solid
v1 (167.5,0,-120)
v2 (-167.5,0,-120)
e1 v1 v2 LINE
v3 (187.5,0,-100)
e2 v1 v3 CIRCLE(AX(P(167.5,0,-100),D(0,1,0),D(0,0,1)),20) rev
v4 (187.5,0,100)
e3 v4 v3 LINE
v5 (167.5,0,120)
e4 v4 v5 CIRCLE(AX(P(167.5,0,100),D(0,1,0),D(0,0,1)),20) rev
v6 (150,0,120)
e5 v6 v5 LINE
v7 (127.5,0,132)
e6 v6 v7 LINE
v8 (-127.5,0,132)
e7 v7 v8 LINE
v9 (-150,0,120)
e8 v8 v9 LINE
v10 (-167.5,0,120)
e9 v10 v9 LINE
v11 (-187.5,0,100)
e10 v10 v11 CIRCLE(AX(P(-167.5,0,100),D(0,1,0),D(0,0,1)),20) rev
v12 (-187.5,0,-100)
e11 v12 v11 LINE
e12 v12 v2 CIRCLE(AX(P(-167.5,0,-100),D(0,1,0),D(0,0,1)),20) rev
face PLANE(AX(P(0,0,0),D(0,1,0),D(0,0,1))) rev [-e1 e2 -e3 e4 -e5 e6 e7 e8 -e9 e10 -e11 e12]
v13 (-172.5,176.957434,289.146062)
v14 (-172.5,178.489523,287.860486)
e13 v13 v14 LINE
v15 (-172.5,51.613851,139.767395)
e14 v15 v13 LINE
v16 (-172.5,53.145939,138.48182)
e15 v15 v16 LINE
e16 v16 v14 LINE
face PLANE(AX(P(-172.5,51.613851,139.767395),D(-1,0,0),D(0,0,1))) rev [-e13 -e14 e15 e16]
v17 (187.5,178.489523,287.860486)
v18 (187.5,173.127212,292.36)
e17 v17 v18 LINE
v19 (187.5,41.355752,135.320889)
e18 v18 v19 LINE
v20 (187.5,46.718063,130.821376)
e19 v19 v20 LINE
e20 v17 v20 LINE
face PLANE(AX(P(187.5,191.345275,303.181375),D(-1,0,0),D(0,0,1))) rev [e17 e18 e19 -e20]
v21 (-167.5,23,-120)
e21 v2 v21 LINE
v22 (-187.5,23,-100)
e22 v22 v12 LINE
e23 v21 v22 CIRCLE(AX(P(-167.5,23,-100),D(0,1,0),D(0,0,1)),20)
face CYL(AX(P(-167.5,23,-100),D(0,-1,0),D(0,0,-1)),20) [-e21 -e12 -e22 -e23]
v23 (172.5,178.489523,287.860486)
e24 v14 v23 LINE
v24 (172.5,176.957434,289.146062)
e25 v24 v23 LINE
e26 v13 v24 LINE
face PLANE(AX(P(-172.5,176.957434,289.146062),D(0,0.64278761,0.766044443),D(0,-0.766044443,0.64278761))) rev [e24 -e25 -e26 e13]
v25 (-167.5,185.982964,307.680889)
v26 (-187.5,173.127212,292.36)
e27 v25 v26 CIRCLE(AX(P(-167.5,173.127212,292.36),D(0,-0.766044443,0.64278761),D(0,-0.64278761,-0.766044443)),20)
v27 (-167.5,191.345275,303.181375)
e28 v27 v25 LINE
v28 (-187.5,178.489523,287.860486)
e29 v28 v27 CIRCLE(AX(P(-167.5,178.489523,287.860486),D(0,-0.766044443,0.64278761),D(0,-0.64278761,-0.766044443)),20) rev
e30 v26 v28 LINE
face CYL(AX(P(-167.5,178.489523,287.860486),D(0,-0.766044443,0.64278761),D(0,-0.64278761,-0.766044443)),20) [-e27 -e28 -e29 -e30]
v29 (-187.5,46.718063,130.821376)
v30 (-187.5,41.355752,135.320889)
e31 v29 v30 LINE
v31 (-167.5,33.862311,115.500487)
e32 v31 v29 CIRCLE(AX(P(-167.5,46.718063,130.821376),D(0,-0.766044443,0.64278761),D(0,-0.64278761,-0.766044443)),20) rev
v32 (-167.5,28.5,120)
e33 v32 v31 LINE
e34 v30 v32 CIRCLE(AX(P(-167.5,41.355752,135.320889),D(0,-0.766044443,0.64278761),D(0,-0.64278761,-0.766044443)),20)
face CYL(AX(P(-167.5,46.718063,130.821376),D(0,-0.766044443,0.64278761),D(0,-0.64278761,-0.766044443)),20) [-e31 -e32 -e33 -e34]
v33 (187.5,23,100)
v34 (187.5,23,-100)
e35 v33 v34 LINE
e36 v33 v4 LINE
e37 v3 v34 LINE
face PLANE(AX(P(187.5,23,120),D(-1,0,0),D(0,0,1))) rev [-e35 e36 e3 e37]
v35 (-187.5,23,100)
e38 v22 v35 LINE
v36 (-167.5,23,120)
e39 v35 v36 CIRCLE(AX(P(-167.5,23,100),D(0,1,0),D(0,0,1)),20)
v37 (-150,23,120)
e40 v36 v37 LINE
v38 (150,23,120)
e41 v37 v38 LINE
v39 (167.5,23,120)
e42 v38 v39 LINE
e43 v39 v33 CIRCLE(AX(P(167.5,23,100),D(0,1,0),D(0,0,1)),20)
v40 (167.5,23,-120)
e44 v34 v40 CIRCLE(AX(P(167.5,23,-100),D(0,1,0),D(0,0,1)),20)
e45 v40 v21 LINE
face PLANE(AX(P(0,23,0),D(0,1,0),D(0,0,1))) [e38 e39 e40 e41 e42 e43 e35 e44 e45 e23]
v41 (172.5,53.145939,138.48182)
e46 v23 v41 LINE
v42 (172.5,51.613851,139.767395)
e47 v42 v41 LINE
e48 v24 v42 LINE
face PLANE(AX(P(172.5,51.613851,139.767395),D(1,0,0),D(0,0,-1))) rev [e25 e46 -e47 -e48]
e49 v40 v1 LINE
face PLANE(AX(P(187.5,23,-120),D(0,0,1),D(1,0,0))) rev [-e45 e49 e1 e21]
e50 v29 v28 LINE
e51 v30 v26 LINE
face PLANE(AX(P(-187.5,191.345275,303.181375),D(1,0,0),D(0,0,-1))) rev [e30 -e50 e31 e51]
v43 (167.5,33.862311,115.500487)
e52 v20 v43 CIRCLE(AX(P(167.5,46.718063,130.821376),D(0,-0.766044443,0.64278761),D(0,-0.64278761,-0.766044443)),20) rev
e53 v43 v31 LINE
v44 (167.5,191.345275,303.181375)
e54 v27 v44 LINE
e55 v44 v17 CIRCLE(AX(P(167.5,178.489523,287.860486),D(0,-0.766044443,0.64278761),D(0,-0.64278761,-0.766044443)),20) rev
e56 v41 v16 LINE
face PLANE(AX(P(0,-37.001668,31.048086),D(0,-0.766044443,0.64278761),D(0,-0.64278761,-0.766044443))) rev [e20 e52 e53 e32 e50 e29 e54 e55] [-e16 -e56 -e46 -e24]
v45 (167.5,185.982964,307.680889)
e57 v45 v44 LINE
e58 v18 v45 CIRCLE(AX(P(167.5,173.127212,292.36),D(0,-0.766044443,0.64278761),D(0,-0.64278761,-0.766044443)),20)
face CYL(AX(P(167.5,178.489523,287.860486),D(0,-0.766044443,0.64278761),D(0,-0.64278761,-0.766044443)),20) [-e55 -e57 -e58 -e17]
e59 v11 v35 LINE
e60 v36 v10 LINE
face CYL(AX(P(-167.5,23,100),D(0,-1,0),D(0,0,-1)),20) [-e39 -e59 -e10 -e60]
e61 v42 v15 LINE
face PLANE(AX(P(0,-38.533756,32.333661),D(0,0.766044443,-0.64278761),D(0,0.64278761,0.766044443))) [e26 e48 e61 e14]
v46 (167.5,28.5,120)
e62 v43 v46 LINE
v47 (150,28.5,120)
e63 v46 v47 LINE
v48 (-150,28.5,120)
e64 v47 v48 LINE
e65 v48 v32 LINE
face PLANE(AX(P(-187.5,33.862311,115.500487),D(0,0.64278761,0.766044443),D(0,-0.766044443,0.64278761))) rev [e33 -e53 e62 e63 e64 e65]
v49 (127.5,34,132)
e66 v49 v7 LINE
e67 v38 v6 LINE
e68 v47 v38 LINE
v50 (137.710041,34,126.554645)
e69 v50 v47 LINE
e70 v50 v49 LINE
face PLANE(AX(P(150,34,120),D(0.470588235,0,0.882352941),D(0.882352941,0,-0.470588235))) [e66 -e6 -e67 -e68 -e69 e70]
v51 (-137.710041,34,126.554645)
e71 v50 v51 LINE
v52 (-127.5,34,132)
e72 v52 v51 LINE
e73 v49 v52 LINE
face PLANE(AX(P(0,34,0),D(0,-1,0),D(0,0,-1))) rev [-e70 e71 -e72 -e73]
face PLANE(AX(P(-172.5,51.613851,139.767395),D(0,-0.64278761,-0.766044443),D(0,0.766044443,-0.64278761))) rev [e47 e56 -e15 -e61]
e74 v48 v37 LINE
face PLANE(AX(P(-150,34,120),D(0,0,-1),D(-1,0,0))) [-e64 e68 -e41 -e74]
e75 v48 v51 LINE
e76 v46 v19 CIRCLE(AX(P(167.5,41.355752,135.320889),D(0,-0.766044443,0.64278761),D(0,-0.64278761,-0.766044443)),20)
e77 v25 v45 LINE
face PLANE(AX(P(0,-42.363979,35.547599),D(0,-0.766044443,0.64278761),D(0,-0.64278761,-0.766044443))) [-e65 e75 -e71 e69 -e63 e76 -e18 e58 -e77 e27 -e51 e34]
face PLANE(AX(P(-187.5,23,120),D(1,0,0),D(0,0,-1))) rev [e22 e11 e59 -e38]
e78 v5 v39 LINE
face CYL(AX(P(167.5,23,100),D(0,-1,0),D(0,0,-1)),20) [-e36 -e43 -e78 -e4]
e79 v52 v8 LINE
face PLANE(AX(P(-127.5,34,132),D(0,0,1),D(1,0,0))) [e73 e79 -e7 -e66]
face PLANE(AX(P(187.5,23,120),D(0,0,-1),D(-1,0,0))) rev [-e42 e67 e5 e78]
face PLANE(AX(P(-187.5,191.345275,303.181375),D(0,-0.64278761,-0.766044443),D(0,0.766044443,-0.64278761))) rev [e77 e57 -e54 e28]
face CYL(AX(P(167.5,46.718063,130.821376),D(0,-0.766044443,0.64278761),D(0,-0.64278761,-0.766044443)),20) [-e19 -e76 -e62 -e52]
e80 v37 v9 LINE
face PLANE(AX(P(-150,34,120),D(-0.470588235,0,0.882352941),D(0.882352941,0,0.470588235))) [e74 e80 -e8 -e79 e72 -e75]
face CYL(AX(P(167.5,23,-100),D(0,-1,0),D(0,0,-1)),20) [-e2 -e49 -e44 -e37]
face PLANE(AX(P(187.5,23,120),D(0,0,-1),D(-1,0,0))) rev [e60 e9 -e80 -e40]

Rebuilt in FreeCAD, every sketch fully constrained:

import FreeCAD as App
import Part
import Sketcher
Q = App.Units.Quantity


def edges_at(feature, points):
    """Names of the edges that pass closest to the given points."""
    edges = feature.Shape.Edges
    near = lambda p: min(range(len(edges)), key=lambda i: edges[i].distToShape(Part.Vertex(*p))[0])
    return sorted({f"Edge{near(p) + 1}" for p in points})

doc = App.newDocument("Part")
params = doc.addObject("Spreadsheet::Sheet", "Params")
for row, (alias, value) in enumerate([
    ("sketch1_width", "375 mm"),
    ("sketch1_height", "240 mm"),
    ("pad1_length", "23 mm"),
    ("sketch2_width", "300 mm"),
    ("sketch2_width2", "255 mm"),
    ("pad2_length", "34 mm"),
    ("sketch3_width", "5.5 mm"),
    ("sketch4_width", "375 mm"),
    ("sketch4_height", "245 mm"),
    ("pad3_length", "7 mm"),
    ("sketch5_width", "345 mm"),
    ("sketch5_height", "195 mm"),
    ("pocket2_length", "2 mm"),
    ("fillet_radius", "20 mm"),
], start=1):
    params.set(f"A{row}", alias)
    params.set(f"B{row}", "=" + value)
    params.setAlias(f"B{row}", alias)

body = doc.addObject("PartDesign::Body", "Body")

# Sketch on XZ plane
sketch1 = body.newObject("Sketcher::SketchObject", "Sketch")
sketch1.AttachmentSupport = (doc.getObject("XZ_Plane"), [""])
sketch1.MapMode = "FlatFace"
sketch1.addGeometry([
    Part.LineSegment(App.Vector(-188, -120, 0), App.Vector(-188, 120, 0)),
    Part.LineSegment(App.Vector(-188, 120, 0), App.Vector(188, 120, 0)),
    Part.LineSegment(App.Vector(188, 120, 0), App.Vector(188, -120, 0)),
    Part.LineSegment(App.Vector(188, -120, 0), App.Vector(-188, -120, 0)),
], False)
sketch1.addConstraint([
    Sketcher.Constraint("Coincident", 0, 2, 1, 1),
    Sketcher.Constraint("Coincident", 1, 2, 2, 1),
    Sketcher.Constraint("Coincident", 2, 2, 3, 1),
    Sketcher.Constraint("Coincident", 3, 2, 0, 1),
    Sketcher.Constraint("Vertical", 0),
    Sketcher.Constraint("Horizontal", 1),
    Sketcher.Constraint("Vertical", 2),
    Sketcher.Constraint("Horizontal", 3),
    Sketcher.Constraint("Symmetric", 0, 2, 2, 2, -1, 1),
    Sketcher.Constraint("DistanceX", 1, 1, 1, 2, 375.0),
    Sketcher.Constraint("DistanceY", 0, 1, 0, 2, 240.0),
])
sketch1.setExpression("Constraints[9]", "Params.sketch1_width")
sketch1.setExpression("Constraints[10]", "Params.sketch1_height")
pad1 = body.newObject("PartDesign::Pad", "Pad")
pad1.Profile = sketch1
pad1.setExpression("Length", "Params.pad1_length")
pad1.Reversed = True

# Sketch on XZ plane
sketch2 = body.newObject("Sketcher::SketchObject", "Sketch001")
sketch2.AttachmentSupport = (doc.getObject("XZ_Plane"), [""])
sketch2.MapMode = "FlatFace"
sketch2.addGeometry([
    Part.LineSegment(App.Vector(-128, 132, 0), App.Vector(-150, 120, 0)),
    Part.LineSegment(App.Vector(-150, 120, 0), App.Vector(150, 120, 0)),
    Part.LineSegment(App.Vector(150, 120, 0), App.Vector(128, 132, 0)),
    Part.LineSegment(App.Vector(128, 132, 0), App.Vector(-128, 132, 0)),
], False)
sketch2.addConstraint([
    Sketcher.Constraint("Coincident", 0, 2, 1, 1),
    Sketcher.Constraint("Coincident", 1, 2, 2, 1),
    Sketcher.Constraint("Coincident", 2, 2, 3, 1),
    Sketcher.Constraint("Coincident", 3, 2, 0, 1),
    Sketcher.Constraint("Horizontal", 1),
    Sketcher.Constraint("Horizontal", 3),
    Sketcher.Constraint("Equal", 0, 2),
    Sketcher.Constraint("DistanceX", 1, 1, 1, 2, 300.0),
    Sketcher.Constraint("DistanceX", 3, 2, 3, 1, 255.0),
    Sketcher.Constraint("DistanceX", 0, 2, -1, 1, 150.0),
    Sketcher.Constraint("DistanceY", -1, 1, 0, 2, 120.0),
    Sketcher.Constraint("DistanceY", -1, 1, 2, 2, 132.0),
])
sketch2.setExpression("Constraints[7]", "Params.sketch2_width")
sketch2.setExpression("Constraints[8]", "Params.sketch2_width2")
pad2 = body.newObject("PartDesign::Pad", "Pad001")
pad2.Profile = sketch2
pad2.setExpression("Length", "Params.pad2_length")
pad2.Reversed = True

# Sketch on YZ plane
sketch3 = body.newObject("Sketcher::SketchObject", "Sketch002")
sketch3.AttachmentSupport = (doc.getObject("YZ_Plane"), [""])
sketch3.MapMode = "FlatFace"
sketch3.AttachmentOffset = App.Placement(App.Vector(0, 0, -187.5), App.Rotation())
sketch3.addGeometry([
    Part.LineSegment(App.Vector(28, 120, 0), App.Vector(34, 127, 0)),
    Part.LineSegment(App.Vector(34, 127, 0), App.Vector(34, 120, 0)),
    Part.LineSegment(App.Vector(34, 120, 0), App.Vector(28, 120, 0)),
], False)
sketch3.addConstraint([
    Sketcher.Constraint("Coincident", 0, 2, 1, 1),
    Sketcher.Constraint("Coincident", 1, 2, 2, 1),
    Sketcher.Constraint("Coincident", 2, 2, 0, 1),
    Sketcher.Constraint("Vertical", 1),
    Sketcher.Constraint("Horizontal", 2),
    Sketcher.Constraint("Angle", 0, Q("50 deg")),
    Sketcher.Constraint("DistanceX", 2, 2, 2, 1, 5.5),
    Sketcher.Constraint("DistanceX", -1, 1, 0, 2, 34.0),
    Sketcher.Constraint("DistanceY", -1, 1, 1, 2, 120.0),
])
sketch3.setExpression("Constraints[6]", "Params.sketch3_width")
pocket1 = body.newObject("PartDesign::Pocket", "Pocket")
pocket1.Profile = sketch3
pocket1.Type = "ThroughAll"
pocket1.Reversed = True

# Sketch on an angled plane
sketch4 = body.newObject("Sketcher::SketchObject", "Sketch003")
sketch4.Placement = App.Placement(App.Vector(0, -42.363979, 35.547599), App.Rotation(App.Vector(-1, 0, 0), App.Vector(0, 0.64278761, 0.766044443), App.Vector(0, 0.766044443, -0.64278761), "ZXY"))
sketch4.addGeometry([
    Part.LineSegment(App.Vector(-188, 355, 0), App.Vector(-188, 110, 0)),
    Part.LineSegment(App.Vector(-188, 110, 0), App.Vector(188, 110, 0)),
    Part.LineSegment(App.Vector(188, 110, 0), App.Vector(188, 355, 0)),
    Part.LineSegment(App.Vector(188, 355, 0), App.Vector(-188, 355, 0)),
], False)
sketch4.addConstraint([
    Sketcher.Constraint("Coincident", 0, 2, 1, 1),
    Sketcher.Constraint("Coincident", 1, 2, 2, 1),
    Sketcher.Constraint("Coincident", 2, 2, 3, 1),
    Sketcher.Constraint("Coincident", 3, 2, 0, 1),
    Sketcher.Constraint("Vertical", 0),
    Sketcher.Constraint("Horizontal", 1),
    Sketcher.Constraint("Vertical", 2),
    Sketcher.Constraint("Horizontal", 3),
    Sketcher.Constraint("DistanceX", 1, 1, 1, 2, 375.0),
    Sketcher.Constraint("DistanceY", 0, 2, 0, 1, 245.0),
    Sketcher.Constraint("DistanceX", 0, 2, -1, 1, 187.5),
    Sketcher.Constraint("DistanceY", -1, 1, 0, 2, 110.24478),
])
sketch4.setExpression("Constraints[8]", "Params.sketch4_width")
sketch4.setExpression("Constraints[9]", "Params.sketch4_height")
pad3 = body.newObject("PartDesign::Pad", "Pad002")
pad3.Profile = sketch4
pad3.setExpression("Length", "Params.pad3_length")

# Sketch on an angled plane
sketch5 = body.newObject("Sketcher::SketchObject", "Sketch004")
sketch5.Placement = App.Placement(App.Vector(0, -37.001668, 31.048086), App.Rotation(App.Vector(1, 0, 0), App.Vector(0, -0.64278761, -0.766044443), App.Vector(0, 0.766044443, -0.64278761), "ZXY"))
sketch5.addGeometry([
    Part.LineSegment(App.Vector(-172, -140, 0), App.Vector(-172, -335, 0)),
    Part.LineSegment(App.Vector(-172, -335, 0), App.Vector(172, -335, 0)),
    Part.LineSegment(App.Vector(172, -335, 0), App.Vector(172, -140, 0)),
    Part.LineSegment(App.Vector(172, -140, 0), App.Vector(-172, -140, 0)),
], False)
sketch5.addConstraint([
    Sketcher.Constraint("Coincident", 0, 2, 1, 1),
    Sketcher.Constraint("Coincident", 1, 2, 2, 1),
    Sketcher.Constraint("Coincident", 2, 2, 3, 1),
    Sketcher.Constraint("Coincident", 3, 2, 0, 1),
    Sketcher.Constraint("Vertical", 0),
    Sketcher.Constraint("Horizontal", 1),
    Sketcher.Constraint("Vertical", 2),
    Sketcher.Constraint("Horizontal", 3),
    Sketcher.Constraint("DistanceX", 1, 1, 1, 2, 345.0),
    Sketcher.Constraint("DistanceY", 0, 2, 0, 1, 195.0),
    Sketcher.Constraint("DistanceX", 0, 2, -1, 1, 172.5),
    Sketcher.Constraint("DistanceY", 0, 2, -1, 1, 335.24478),
])
sketch5.setExpression("Constraints[8]", "Params.sketch5_width")
sketch5.setExpression("Constraints[9]", "Params.sketch5_height")
pocket2 = body.newObject("PartDesign::Pocket", "Pocket001")
pocket2.Profile = sketch5
pocket2.setExpression("Length", "Params.pocket2_length")
doc.recompute()

fillet = body.newObject("PartDesign::Fillet", "Fillet")
fillet.Base = (pocket2, edges_at(pocket2, [
    (187.5, 188.664, 305.431),
    (187.5, 31.181, 117.75),
    (-187.5, 31.181, 117.75),
    (-187.5, 188.664, 305.431),
    (-187.5, 11.5, -120),
    (187.5, 11.5, -120),
    (187.5, 11.5, 120),
    (-187.5, 11.5, 120),
]))
fillet.setExpression("Radius", "Params.fillet_radius")

doc.recompute()
